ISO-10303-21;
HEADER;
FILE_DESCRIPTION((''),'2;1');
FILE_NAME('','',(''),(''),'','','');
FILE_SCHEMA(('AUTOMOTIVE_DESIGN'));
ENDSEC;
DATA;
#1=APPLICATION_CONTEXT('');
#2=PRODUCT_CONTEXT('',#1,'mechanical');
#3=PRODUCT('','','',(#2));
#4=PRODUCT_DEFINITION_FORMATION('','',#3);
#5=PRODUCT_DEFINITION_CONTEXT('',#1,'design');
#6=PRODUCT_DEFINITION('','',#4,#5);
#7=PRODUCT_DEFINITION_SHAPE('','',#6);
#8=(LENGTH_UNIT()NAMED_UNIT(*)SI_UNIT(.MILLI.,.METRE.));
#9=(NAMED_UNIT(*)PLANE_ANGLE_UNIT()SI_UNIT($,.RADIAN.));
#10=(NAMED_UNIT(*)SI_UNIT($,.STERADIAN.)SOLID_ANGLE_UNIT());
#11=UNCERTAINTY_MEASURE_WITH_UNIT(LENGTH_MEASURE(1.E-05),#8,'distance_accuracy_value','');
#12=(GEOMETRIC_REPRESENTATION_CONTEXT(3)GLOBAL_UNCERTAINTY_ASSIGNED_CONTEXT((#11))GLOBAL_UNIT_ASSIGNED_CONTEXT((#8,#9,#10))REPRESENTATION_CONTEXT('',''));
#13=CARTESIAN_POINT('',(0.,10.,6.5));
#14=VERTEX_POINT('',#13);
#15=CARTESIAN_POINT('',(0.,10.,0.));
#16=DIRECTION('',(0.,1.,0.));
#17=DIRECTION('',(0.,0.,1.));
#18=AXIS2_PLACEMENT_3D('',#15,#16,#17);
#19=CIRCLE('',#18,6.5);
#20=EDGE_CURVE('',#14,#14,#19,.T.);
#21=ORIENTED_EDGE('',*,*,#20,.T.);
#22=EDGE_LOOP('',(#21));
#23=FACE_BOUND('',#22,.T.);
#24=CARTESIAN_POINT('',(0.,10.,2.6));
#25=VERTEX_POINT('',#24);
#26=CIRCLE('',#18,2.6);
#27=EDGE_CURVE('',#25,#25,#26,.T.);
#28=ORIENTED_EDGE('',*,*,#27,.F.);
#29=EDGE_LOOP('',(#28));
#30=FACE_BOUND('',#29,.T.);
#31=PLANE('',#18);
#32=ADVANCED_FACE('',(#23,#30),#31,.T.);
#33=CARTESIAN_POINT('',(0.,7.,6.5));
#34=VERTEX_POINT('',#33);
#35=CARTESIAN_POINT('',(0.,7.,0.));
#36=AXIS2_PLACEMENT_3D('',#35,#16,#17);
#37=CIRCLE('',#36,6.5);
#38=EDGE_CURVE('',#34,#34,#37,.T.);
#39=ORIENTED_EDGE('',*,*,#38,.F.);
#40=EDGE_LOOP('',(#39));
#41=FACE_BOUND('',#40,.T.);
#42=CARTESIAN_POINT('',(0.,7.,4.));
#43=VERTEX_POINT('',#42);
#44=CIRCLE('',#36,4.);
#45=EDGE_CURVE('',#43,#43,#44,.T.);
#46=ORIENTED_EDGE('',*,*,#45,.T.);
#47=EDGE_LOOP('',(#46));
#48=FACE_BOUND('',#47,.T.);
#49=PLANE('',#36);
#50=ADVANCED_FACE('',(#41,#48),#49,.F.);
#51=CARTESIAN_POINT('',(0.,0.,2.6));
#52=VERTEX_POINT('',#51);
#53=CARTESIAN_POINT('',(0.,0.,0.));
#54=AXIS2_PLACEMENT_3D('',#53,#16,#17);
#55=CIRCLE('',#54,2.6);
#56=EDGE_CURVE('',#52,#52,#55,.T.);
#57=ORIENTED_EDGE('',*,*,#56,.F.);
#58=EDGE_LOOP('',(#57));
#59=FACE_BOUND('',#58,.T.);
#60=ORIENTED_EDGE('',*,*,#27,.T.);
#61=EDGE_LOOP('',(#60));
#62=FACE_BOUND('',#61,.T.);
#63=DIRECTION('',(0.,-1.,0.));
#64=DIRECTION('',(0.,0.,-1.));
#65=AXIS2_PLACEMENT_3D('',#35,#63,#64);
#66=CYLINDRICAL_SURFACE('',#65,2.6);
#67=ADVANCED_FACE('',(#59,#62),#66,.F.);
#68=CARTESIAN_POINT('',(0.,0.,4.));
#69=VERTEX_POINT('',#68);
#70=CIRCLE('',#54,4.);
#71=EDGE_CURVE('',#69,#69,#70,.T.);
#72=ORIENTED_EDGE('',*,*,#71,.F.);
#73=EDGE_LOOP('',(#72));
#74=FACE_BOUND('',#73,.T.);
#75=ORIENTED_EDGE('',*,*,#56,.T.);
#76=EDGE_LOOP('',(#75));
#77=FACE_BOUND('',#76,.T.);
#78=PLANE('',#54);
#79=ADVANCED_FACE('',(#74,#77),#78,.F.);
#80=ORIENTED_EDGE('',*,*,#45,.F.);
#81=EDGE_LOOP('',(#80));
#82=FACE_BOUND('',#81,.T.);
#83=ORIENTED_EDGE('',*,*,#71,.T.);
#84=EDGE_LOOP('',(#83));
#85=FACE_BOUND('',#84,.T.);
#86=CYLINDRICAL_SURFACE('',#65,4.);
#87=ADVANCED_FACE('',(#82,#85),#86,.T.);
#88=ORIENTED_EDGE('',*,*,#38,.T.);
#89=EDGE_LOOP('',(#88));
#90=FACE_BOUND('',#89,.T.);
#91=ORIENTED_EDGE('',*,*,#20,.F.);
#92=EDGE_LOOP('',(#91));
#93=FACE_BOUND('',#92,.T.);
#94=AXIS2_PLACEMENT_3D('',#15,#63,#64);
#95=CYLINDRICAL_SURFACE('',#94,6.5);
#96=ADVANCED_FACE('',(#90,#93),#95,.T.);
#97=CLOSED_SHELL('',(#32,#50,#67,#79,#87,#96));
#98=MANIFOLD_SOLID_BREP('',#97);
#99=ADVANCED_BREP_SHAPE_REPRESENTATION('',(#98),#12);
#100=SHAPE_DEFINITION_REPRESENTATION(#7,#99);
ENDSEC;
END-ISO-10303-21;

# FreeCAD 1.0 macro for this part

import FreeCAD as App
import Part
import Sketcher

V = App.Vector
Q = App.Units.Quantity

doc = App.newDocument("Part")
params = doc.addObject("Spreadsheet::Sheet", "Params")
for row, (alias, value) in enumerate([
    ("sketch1_diameter", "8 mm"),
    ("sketch1_diameter2", "5.2 mm"),
    ("pad1_length", "7 mm"),
    ("sketch2_diameter", "13 mm"),
    ("sketch2_diameter2", "5.2 mm"),
    ("pad2_length", "3 mm"),
], start=1):
    params.set(f"A{row}", alias)
    params.set(f"B{row}", "=" + value)
    params.setAlias(f"B{row}", alias)

body = doc.addObject("PartDesign::Body", "Body")

sketch1 = body.newObject("Sketcher::SketchObject", "Sketch")
sketch1.AttachmentSupport = (doc.getObject("XZ_Plane"), [""])
sketch1.MapMode = "FlatFace"
sketch1.addGeometry(Part.Circle(V(0, 0, 0), V(0, 0, 1), 4), False)
sketch1.addGeometry(Part.Circle(V(0, 0, 0), V(0, 0, 1), 2.6), False)
sketch1.addConstraint(Sketcher.Constraint("Coincident", 0, 3, -1, 1))
sketch1.addConstraint(Sketcher.Constraint("Coincident", 1, 3, -1, 1))
sketch1.addConstraint(Sketcher.Constraint("Diameter", 0, Q("8 mm")))
sketch1.addConstraint(Sketcher.Constraint("Diameter", 1, Q("5.2 mm")))
sketch1.setExpression("Constraints[2]", "Params.sketch1_diameter")
sketch1.setExpression("Constraints[3]", "Params.sketch1_diameter2")
pad1 = body.newObject("PartDesign::Pad", "Pad")
pad1.Profile = sketch1
pad1.setExpression("Length", "Params.pad1_length")
pad1.Reversed = True

sketch2 = body.newObject("Sketcher::SketchObject", "Sketch001")
sketch2.AttachmentSupport = (doc.getObject("XZ_Plane"), [""])
sketch2.MapMode = "FlatFace"
sketch2.AttachmentOffset = App.Placement(V(0, 0, -7), App.Rotation())
sketch2.addGeometry(Part.Circle(V(0, 0, 0), V(0, 0, 1), 6.5), False)
sketch2.addGeometry(Part.Circle(V(0, 0, 0), V(0, 0, 1), 2.6), False)
sketch2.addConstraint(Sketcher.Constraint("Coincident", 0, 3, -1, 1))
sketch2.addConstraint(Sketcher.Constraint("Coincident", 1, 3, -1, 1))
sketch2.addConstraint(Sketcher.Constraint("Diameter", 0, Q("13 mm")))
sketch2.addConstraint(Sketcher.Constraint("Diameter", 1, Q("5.2 mm")))
sketch2.setExpression("Constraints[2]", "Params.sketch2_diameter")
sketch2.setExpression("Constraints[3]", "Params.sketch2_diameter2")
pad2 = body.newObject("PartDesign::Pad", "Pad001")
pad2.Profile = sketch2
pad2.setExpression("Length", "Params.pad2_length")
pad2.Reversed = True

doc.recompute()
